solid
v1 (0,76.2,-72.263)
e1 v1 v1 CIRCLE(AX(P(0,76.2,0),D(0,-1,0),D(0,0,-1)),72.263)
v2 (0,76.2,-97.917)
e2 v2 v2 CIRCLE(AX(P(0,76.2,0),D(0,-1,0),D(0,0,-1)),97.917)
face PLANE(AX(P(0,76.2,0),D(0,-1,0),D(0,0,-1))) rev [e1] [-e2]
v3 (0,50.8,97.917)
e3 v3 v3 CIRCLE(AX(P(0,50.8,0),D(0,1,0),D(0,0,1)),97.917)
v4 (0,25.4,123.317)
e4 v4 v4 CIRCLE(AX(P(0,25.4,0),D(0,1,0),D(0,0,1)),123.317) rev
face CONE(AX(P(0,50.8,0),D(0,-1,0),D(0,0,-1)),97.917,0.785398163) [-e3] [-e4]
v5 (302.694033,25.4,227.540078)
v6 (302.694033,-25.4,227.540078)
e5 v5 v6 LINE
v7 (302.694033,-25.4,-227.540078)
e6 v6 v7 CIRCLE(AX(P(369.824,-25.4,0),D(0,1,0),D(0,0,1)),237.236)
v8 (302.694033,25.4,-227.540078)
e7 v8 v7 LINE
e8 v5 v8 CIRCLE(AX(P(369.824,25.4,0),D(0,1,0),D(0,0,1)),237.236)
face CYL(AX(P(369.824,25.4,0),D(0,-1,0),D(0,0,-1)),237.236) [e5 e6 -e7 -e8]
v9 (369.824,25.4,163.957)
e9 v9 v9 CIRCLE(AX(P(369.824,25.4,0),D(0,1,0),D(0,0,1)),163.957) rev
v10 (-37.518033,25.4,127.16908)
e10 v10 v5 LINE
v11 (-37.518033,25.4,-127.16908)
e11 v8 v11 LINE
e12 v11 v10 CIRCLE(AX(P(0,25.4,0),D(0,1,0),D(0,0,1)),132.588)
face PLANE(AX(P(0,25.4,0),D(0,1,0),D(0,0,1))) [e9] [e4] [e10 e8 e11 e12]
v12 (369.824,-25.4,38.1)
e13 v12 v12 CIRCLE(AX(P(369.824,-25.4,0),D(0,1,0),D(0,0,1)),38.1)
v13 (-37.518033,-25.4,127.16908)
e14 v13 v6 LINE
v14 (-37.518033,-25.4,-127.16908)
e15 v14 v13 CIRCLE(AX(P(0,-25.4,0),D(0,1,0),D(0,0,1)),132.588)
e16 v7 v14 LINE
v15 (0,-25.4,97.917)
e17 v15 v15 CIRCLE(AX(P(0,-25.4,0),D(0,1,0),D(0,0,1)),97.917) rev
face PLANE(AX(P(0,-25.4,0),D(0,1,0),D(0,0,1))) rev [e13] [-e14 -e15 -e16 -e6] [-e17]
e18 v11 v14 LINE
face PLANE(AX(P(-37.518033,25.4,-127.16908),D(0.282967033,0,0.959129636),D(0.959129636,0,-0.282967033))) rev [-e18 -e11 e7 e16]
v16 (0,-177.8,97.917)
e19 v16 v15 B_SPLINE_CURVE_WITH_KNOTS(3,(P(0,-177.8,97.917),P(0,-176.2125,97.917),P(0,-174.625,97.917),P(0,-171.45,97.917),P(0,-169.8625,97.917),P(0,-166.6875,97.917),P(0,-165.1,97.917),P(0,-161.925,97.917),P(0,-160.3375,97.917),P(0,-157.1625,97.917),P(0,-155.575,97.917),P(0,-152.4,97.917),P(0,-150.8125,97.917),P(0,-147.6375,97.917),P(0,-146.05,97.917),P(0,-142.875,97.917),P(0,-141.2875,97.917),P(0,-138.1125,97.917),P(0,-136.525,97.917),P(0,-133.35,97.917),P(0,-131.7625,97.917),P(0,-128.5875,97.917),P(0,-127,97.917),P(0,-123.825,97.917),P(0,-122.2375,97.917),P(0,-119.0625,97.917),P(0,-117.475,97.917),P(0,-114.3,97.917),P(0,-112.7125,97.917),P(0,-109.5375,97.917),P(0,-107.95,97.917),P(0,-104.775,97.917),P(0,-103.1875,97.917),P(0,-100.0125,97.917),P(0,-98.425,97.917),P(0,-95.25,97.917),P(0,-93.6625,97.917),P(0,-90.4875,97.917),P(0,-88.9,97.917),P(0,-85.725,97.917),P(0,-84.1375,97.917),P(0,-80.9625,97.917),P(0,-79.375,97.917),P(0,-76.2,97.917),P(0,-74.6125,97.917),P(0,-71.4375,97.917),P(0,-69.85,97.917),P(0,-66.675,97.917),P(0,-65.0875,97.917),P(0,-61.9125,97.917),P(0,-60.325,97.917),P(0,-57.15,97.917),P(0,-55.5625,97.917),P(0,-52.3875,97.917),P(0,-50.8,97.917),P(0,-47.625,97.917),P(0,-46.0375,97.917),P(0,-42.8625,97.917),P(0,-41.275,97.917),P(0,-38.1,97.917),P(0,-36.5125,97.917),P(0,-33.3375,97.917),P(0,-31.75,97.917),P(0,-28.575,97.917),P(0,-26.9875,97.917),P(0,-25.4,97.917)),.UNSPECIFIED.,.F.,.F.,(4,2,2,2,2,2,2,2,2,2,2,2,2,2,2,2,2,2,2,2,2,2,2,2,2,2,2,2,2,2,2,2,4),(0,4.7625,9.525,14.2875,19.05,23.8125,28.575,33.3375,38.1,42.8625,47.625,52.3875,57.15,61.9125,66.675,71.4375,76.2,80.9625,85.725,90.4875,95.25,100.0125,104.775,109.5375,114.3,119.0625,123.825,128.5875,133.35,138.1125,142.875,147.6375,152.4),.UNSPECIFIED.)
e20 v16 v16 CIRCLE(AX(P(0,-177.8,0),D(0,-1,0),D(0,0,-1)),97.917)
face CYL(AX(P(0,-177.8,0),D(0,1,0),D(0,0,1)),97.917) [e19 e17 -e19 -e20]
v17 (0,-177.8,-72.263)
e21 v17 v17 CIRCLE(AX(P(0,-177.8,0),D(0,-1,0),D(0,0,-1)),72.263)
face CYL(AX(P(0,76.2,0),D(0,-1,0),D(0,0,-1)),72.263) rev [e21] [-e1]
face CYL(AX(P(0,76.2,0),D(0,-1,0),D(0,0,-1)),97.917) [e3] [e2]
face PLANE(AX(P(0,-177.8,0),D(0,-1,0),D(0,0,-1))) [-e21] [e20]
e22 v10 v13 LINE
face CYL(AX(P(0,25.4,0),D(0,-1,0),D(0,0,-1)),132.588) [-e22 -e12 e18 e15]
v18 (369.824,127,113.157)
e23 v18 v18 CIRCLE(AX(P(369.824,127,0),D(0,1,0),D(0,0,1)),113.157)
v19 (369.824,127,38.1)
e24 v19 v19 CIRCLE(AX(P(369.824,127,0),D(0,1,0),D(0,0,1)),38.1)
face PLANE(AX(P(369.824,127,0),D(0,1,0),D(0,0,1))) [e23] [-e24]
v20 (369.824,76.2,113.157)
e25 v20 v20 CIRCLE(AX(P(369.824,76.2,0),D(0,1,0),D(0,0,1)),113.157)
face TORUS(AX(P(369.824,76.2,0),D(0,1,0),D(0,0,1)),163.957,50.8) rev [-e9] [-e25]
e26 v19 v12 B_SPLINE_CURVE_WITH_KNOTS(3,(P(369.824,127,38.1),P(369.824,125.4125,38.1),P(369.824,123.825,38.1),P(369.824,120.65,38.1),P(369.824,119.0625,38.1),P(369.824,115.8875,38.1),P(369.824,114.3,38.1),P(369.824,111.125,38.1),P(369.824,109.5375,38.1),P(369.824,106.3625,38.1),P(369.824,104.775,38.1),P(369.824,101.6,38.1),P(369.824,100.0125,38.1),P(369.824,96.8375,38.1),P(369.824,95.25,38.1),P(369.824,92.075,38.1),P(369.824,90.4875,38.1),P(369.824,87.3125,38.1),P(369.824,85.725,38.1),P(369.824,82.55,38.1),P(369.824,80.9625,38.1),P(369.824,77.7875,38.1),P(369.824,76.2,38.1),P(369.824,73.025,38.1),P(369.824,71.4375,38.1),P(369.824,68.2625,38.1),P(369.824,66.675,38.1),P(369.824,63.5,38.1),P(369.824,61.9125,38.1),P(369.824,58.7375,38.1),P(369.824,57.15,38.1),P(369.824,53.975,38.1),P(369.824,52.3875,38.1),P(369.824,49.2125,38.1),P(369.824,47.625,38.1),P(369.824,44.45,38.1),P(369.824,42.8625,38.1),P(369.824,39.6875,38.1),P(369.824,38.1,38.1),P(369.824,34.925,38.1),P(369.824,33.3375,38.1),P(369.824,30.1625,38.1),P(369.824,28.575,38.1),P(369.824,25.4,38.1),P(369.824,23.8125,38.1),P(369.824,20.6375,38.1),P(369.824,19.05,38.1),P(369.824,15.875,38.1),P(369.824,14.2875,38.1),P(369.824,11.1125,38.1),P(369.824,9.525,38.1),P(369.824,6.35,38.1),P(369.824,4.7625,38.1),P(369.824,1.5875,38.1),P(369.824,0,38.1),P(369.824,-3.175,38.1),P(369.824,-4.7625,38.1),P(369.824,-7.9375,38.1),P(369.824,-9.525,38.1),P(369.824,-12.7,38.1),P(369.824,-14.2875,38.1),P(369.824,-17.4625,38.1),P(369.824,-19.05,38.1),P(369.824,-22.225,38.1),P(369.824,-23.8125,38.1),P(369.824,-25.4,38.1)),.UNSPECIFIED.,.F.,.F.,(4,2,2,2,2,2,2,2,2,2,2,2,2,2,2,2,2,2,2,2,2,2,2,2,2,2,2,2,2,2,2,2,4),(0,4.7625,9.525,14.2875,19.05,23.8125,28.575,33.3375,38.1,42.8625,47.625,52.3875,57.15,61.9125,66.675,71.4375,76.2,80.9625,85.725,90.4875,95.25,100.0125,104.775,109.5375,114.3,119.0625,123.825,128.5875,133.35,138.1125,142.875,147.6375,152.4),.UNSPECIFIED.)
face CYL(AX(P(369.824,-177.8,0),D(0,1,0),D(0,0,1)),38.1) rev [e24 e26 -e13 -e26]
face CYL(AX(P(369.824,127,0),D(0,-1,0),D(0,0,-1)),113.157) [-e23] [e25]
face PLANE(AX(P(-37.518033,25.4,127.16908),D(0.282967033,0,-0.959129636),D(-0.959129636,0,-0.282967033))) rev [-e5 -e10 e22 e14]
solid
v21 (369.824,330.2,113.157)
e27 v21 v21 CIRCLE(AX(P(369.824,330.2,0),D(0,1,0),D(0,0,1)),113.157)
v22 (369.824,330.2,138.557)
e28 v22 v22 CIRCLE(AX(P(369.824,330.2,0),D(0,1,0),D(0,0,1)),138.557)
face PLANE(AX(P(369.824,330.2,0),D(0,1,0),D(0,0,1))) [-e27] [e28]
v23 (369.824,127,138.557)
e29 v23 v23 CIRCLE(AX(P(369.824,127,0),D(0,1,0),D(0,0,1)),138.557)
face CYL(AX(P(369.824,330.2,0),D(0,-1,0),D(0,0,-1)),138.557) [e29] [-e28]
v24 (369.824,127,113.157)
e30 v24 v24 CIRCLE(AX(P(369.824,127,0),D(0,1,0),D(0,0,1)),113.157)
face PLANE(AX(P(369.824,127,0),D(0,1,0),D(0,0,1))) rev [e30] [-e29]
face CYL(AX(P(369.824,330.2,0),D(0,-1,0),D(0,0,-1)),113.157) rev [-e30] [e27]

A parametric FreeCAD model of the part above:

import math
import FreeCAD as App
import Part
import Sketcher
from FreeCAD import Vector
Q = App.Units.Quantity


def edges_at(feature, points):
    """Names of the edges that pass closest to the given points."""
    edges = feature.Shape.Edges
    near = lambda p: min(range(len(edges)), key=lambda i: edges[i].distToShape(Part.Vertex(*p))[0])
    return sorted({f"Edge{near(p) + 1}" for p in points})

doc = App.newDocument("Part")
params = doc.addObject("Spreadsheet::Sheet", "Params")
for row, (alias, value) in enumerate([
    ("sketch1_radius", "5.22 in"),
    ("sketch1_radius2", "9.34 in"),
    ("pad1_length", "2 in"),
    ("sketch2_diameter", "7.71 in"),
    ("pad2_length", "6 in"),
    ("sketch3_diameter", "5.69 in"),
    ("sketch4_diameter", "7.71 in"),
    ("pad3_length", "10 in"),
    ("sketch5_diameter", "5.69 in"),
    ("pocket2_length", "10 in"),
    ("sketch6_diameter", "8.91 in"),
    ("pad4_length", "4 in"),
    ("sketch7_diameter", "3 in"),
    ("fillet_radius", "2 in"),
    ("chamfer_size", "1 in"),
    ("sketch8_diameter", "10.91 in"),
    ("sketch8_diameter2", "8.91 in"),
    ("pad5_length", "8 in"),
], start=1):
    params.set(f"A{row}", alias)
    params.set(f"B{row}", "=" + value)
    params.setAlias(f"B{row}", alias)

body = doc.addObject("PartDesign::Body", "Body")

sketch1 = body.newObject("Sketcher::SketchObject", "Sketch")
sketch1.AttachmentSupport = (doc.getObject("XZ_Plane"), [""])
sketch1.MapMode = "FlatFace"
sketch1.addGeometry([
    Part.LineSegment(Vector(303, -228, 0), Vector(-38, -127, 0)),
    Part.ArcOfCircle(Part.Circle(Vector(0, 0, 0), Vector(0, 0, 1), 133), math.radians(106), math.radians(254)),
    Part.LineSegment(Vector(-38, 127, 0), Vector(303, 228, 0)),
    Part.ArcOfCircle(Part.Circle(Vector(370, 0, 0), Vector(0, 0, 1), 237), math.radians(-106), math.radians(106)),
], False)
sketch1.addConstraint([
    Sketcher.Constraint("Tangent", 0, 2, 1, 2),
    Sketcher.Constraint("Tangent", 1, 1, 2, 1),
    Sketcher.Constraint("Tangent", 2, 2, 3, 2),
    Sketcher.Constraint("Tangent", 3, 1, 0, 1),
    Sketcher.Constraint("Coincident", 1, 3, -1, 1),
    Sketcher.Constraint("PointOnObject", 3, 3, -1),
    Sketcher.Constraint("Radius", 1, Q("5.22 in")),
    Sketcher.Constraint("Radius", 3, Q("9.34 in")),
    Sketcher.Constraint("DistanceX", -1, 1, 3, 3, Q("14.56 in")),
])
sketch1.setExpression("Constraints[6]", "Params.sketch1_radius")
sketch1.setExpression("Constraints[7]", "Params.sketch1_radius2")
pad1 = body.newObject("PartDesign::Pad", "Pad")
pad1.Profile = sketch1
pad1.setExpression("Length", "Params.pad1_length")
pad1.Midplane = True

sketch2 = body.newObject("Sketcher::SketchObject", "Sketch001")
sketch2.AttachmentSupport = (doc.getObject("XZ_Plane"), [""])
sketch2.MapMode = "FlatFace"
sketch2.AttachmentOffset = App.Placement(Vector(0, 0, 1 * 25.4), App.Rotation())
sketch2.addGeometry(Part.Circle(Vector(0, 0, 0), Vector(0, 0, 1), 98), False)
sketch2.addConstraint([
    Sketcher.Constraint("Coincident", 0, 3, -1, 1),
    Sketcher.Constraint("Diameter", 0, Q("7.71 in")),
])
sketch2.setExpression("Constraints[1]", "Params.sketch2_diameter")
pad2 = body.newObject("PartDesign::Pad", "Pad001")
pad2.Profile = sketch2
pad2.setExpression("Length", "Params.pad2_length")

sketch3 = body.newObject("Sketcher::SketchObject", "Sketch002")
sketch3.AttachmentSupport = (doc.getObject("XZ_Plane"), [""])
sketch3.MapMode = "FlatFace"
sketch3.AttachmentOffset = App.Placement(Vector(0, 0, 7 * 25.4), App.Rotation())
sketch3.addGeometry(Part.Circle(Vector(0, 0, 0), Vector(0, 0, 1), 72), False)
sketch3.addConstraint([
    Sketcher.Constraint("Coincident", 0, 3, -1, 1),
    Sketcher.Constraint("Diameter", 0, Q("5.69 in")),
])
sketch3.setExpression("Constraints[1]", "Params.sketch3_diameter")
pocket1 = body.newObject("PartDesign::Pocket", "Pocket")
pocket1.Profile = sketch3
pocket1.Type = "ThroughAll"

sketch4 = body.newObject("Sketcher::SketchObject", "Sketch003")
sketch4.AttachmentSupport = (doc.getObject("XZ_Plane"), [""])
sketch4.MapMode = "FlatFace"
sketch4.AttachmentOffset = App.Placement(Vector(0, 0, -3 * 25.4), App.Rotation())
sketch4.addGeometry(Part.Circle(Vector(0, 0, 0), Vector(0, 0, 1), 98), False)
sketch4.addConstraint([
    Sketcher.Constraint("Coincident", 0, 3, -1, 1),
    Sketcher.Constraint("Diameter", 0, Q("7.71 in")),
])
sketch4.setExpression("Constraints[1]", "Params.sketch4_diameter")
pad3 = body.newObject("PartDesign::Pad", "Pad002")
pad3.Profile = sketch4
pad3.setExpression("Length", "Params.pad3_length")

sketch5 = body.newObject("Sketcher::SketchObject", "Sketch004")
sketch5.AttachmentSupport = (doc.getObject("XZ_Plane"), [""])
sketch5.MapMode = "FlatFace"
sketch5.AttachmentOffset = App.Placement(Vector(0, 0, 7 * 25.4), App.Rotation())
sketch5.addGeometry(Part.Circle(Vector(0, 0, 0), Vector(0, 0, 1), 72), False)
sketch5.addConstraint([
    Sketcher.Constraint("Coincident", 0, 3, -1, 1),
    Sketcher.Constraint("Diameter", 0, Q("5.69 in")),
])
sketch5.setExpression("Constraints[1]", "Params.sketch5_diameter")
pocket2 = body.newObject("PartDesign::Pocket", "Pocket001")
pocket2.Profile = sketch5
pocket2.setExpression("Length", "Params.pocket2_length")

sketch6 = body.newObject("Sketcher::SketchObject", "Sketch005")
sketch6.AttachmentSupport = (doc.getObject("XZ_Plane"), [""])
sketch6.MapMode = "FlatFace"
sketch6.AttachmentOffset = App.Placement(Vector(0, 0, -1 * 25.4), App.Rotation())
sketch6.addGeometry(Part.Circle(Vector(370, 0, 0), Vector(0, 0, 1), 113), False)
sketch6.addConstraint([
    Sketcher.Constraint("PointOnObject", 0, 3, -1),
    Sketcher.Constraint("Diameter", 0, Q("8.91 in")),
    Sketcher.Constraint("DistanceX", -1, 1, 0, 3, Q("14.56 in")),
])
sketch6.setExpression("Constraints[1]", "Params.sketch6_diameter")
pad4 = body.newObject("PartDesign::Pad", "Pad003")
pad4.Profile = sketch6
pad4.setExpression("Length", "Params.pad4_length")
pad4.Reversed = True

sketch7 = body.newObject("Sketcher::SketchObject", "Sketch006")
sketch7.AttachmentSupport = (doc.getObject("XZ_Plane"), [""])
sketch7.MapMode = "FlatFace"
sketch7.AttachmentOffset = App.Placement(Vector(0, 0, -5 * 25.4), App.Rotation())
sketch7.addGeometry(Part.Circle(Vector(370, 0, 0), Vector(0, 0, 1), 38), False)
sketch7.addConstraint([
    Sketcher.Constraint("PointOnObject", 0, 3, -1),
    Sketcher.Constraint("Diameter", 0, Q("3 in")),
    Sketcher.Constraint("DistanceX", -1, 1, 0, 3, Q("14.56 in")),
])
sketch7.setExpression("Constraints[1]", "Params.sketch7_diameter")
pocket3 = body.newObject("PartDesign::Pocket", "Pocket002")
pocket3.Profile = sketch7
pocket3.Type = "ThroughAll"
pocket3.Reversed = True
doc.recompute()

fillet = body.newObject("PartDesign::Fillet", "Fillet")
fillet.Base = (pocket3, edges_at(pocket3, [(369.824, 25.4, -113.157)]))
fillet.setExpression("Radius", "Params.fillet_radius")
doc.recompute()

chamfer = body.newObject("PartDesign::Chamfer", "Chamfer")
chamfer.Base = (fillet, edges_at(fillet, [(0, 25.4, -97.917)]))
chamfer.setExpression("Size", "Params.chamfer_size")
body2 = doc.addObject("PartDesign::Body", "Body001")

sketch8 = body2.newObject("Sketcher::SketchObject", "Sketch007")
sketch8.AttachmentSupport = (doc.getObject("XZ_Plane001"), [""])
sketch8.MapMode = "FlatFace"
sketch8.AttachmentOffset = App.Placement(Vector(0, 0, -5 * 25.4), App.Rotation())
sketch8.addGeometry([
    Part.Circle(Vector(370, 0, 0), Vector(0, 0, 1), 139),
    Part.Circle(Vector(370, 0, 0), Vector(0, 0, 1), 113),
], False)
sketch8.addConstraint([
    Sketcher.Constraint("Coincident", 1, 3, 0, 3),
    Sketcher.Constraint("PointOnObject", 0, 3, -1),
    Sketcher.Constraint("Diameter", 0, Q("10.91 in")),
    Sketcher.Constraint("Diameter", 1, Q("8.91 in")),
    Sketcher.Constraint("DistanceX", -1, 1, 0, 3, Q("14.56 in")),
])
sketch8.setExpression("Constraints[2]", "Params.sketch8_diameter")
sketch8.setExpression("Constraints[3]", "Params.sketch8_diameter2")
pad5 = body2.newObject("PartDesign::Pad", "Pad004")
pad5.Profile = sketch8
pad5.setExpression("Length", "Params.pad5_length")
pad5.Reversed = True

doc.recompute()
